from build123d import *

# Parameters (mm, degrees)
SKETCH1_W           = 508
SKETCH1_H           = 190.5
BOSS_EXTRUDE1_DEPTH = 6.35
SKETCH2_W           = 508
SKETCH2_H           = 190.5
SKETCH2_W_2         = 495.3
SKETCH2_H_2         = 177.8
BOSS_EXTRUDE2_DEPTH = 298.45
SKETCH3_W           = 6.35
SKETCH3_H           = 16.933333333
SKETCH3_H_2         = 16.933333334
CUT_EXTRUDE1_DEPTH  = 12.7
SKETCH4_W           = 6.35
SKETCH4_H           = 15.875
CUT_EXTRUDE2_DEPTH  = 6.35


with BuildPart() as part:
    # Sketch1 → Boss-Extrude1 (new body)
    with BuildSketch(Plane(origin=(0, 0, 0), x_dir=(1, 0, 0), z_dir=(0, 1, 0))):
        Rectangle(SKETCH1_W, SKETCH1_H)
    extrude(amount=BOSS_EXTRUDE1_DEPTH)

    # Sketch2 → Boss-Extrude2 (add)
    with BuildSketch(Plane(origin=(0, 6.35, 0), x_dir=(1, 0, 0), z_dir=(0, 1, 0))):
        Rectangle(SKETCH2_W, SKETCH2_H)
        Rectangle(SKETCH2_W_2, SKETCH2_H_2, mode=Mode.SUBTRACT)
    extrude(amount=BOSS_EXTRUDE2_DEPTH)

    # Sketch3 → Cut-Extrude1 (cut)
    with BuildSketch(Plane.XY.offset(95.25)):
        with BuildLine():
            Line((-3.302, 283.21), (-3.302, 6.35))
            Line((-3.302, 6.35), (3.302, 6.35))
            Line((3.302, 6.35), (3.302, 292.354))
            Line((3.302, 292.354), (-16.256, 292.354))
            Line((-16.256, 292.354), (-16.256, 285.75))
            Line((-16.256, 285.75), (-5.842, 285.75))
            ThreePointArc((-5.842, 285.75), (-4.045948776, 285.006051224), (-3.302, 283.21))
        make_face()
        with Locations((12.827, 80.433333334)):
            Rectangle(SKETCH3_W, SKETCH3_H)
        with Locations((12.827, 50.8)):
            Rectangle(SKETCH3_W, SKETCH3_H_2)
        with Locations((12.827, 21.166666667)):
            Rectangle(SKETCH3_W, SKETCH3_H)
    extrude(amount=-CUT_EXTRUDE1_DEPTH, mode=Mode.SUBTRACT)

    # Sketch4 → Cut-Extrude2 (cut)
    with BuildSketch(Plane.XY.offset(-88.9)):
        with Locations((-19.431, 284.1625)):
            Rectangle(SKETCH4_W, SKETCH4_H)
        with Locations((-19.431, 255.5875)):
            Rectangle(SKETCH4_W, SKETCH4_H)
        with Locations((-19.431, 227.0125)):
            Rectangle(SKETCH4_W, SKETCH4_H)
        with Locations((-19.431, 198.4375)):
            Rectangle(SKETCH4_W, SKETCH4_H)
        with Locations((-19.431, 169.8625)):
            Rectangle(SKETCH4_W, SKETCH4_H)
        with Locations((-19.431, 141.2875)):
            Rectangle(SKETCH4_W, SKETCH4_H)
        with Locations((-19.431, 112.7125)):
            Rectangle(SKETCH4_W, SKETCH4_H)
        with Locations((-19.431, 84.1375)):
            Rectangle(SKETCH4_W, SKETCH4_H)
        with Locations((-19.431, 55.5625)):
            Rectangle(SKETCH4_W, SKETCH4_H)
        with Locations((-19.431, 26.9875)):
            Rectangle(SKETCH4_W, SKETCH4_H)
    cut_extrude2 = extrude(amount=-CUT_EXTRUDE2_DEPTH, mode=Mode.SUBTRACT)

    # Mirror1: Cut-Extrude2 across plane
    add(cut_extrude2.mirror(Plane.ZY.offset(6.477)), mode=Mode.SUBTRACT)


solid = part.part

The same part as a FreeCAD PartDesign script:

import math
import FreeCAD as App
import Part
import Sketcher
from FreeCAD import Vector
Q = App.Units.Quantity


def add_polygon(sketch, points):
    """Adds a closed chain of lines whose ends are joined by coincident constraints."""
    first, n = sketch.GeometryCount, len(points)
    for a, b in zip(points, points[1:] + points[:1]):
        sketch.addGeometry(Part.LineSegment(App.Vector(*a, 0), App.Vector(*b, 0)), False)
    for i in range(n):
        sketch.addConstraint(Sketcher.Constraint("Coincident", first + i, 2, first + (i + 1) % n, 1))

doc = App.newDocument("Part")
body = doc.addObject("PartDesign::Body", "Body")

sketch1 = body.newObject("Sketcher::SketchObject", "Sketch")
sketch1.AttachmentSupport = (doc.getObject("XZ_Plane"), [""])
sketch1.MapMode = "FlatFace"
add_polygon(sketch1, [(-254, -95.25), (-254, 95.25), (254, 95.25), (254, -95.25)])
sketch1.addConstraint(Sketcher.Constraint("Vertical", 0))
sketch1.addConstraint(Sketcher.Constraint("Horizontal", 1))
sketch1.addConstraint(Sketcher.Constraint("Vertical", 2))
sketch1.addConstraint(Sketcher.Constraint("Horizontal", 3))
sketch1.addConstraint(Sketcher.Constraint("Symmetric", 0, 2, 2, 2, -1, 1))
sketch1.addConstraint(Sketcher.Constraint("DistanceX", 1, 1, 1, 2, Q("20 in")))
sketch1.addConstraint(Sketcher.Constraint("DistanceY", 0, 1, 0, 2, Q("7.5 in")))
pad1 = body.newObject("PartDesign::Pad", "Pad")
pad1.Profile = sketch1
pad1.Length = Q("0.25 in")
pad1.Reversed = True

sketch2 = body.newObject("Sketcher::SketchObject", "Sketch001")
sketch2.AttachmentSupport = (doc.getObject("XZ_Plane"), [""])
sketch2.MapMode = "FlatFace"
sketch2.AttachmentOffset = App.Placement(Vector(0, 0, -0.25 * 25.4), App.Rotation())
add_polygon(sketch2, [(-254, -95.25), (-254, 95.25), (254, 95.25), (254, -95.25)])
add_polygon(sketch2, [(247.65, 88.9), (-247.65, 88.9), (-247.65, -88.9), (247.65, -88.9)])
sketch2.addConstraint(Sketcher.Constraint("Vertical", 0))
sketch2.addConstraint(Sketcher.Constraint("Horizontal", 1))
sketch2.addConstraint(Sketcher.Constraint("Vertical", 2))
sketch2.addConstraint(Sketcher.Constraint("Horizontal", 3))
sketch2.addConstraint(Sketcher.Constraint("Horizontal", 4))
sketch2.addConstraint(Sketcher.Constraint("Vertical", 5))
sketch2.addConstraint(Sketcher.Constraint("Horizontal", 6))
sketch2.addConstraint(Sketcher.Constraint("Vertical", 7))
sketch2.addConstraint(Sketcher.Constraint("Symmetric", 0, 2, 2, 2, -1, 1))
sketch2.addConstraint(Sketcher.Constraint("Symmetric", 4, 2, 6, 2, -1, 1))
sketch2.addConstraint(Sketcher.Constraint("DistanceX", 1, 1, 1, 2, Q("20 in")))
sketch2.addConstraint(Sketcher.Constraint("DistanceY", 5, 2, 5, 1, Q("7 in")))
sketch2.addConstraint(Sketcher.Constraint("DistanceX", 4, 2, 4, 1, Q("19.5 in")))
sketch2.addConstraint(Sketcher.Constraint("DistanceY", 0, 1, 0, 2, Q("7.5 in")))
pad2 = body.newObject("PartDesign::Pad", "Pad001")
pad2.Profile = sketch2
pad2.Length = Q("11.75 in")
pad2.Reversed = True

sketch3 = body.newObject("Sketcher::SketchObject", "Sketch002")
sketch3.AttachmentSupport = (doc.getObject("XY_Plane"), [""])
sketch3.MapMode = "FlatFace"
sketch3.AttachmentOffset = App.Placement(Vector(0, 0, 3.75 * 25.4), App.Rotation())
sketch3.addGeometry(Part.LineSegment(Vector(-3.302, 283.21, 0), Vector(-3.302, 6.35, 0)), False)
sketch3.addGeometry(Part.LineSegment(Vector(-3.302, 6.35, 0), Vector(3.302, 6.35, 0)), False)
sketch3.addGeometry(Part.LineSegment(Vector(3.302, 6.35, 0), Vector(3.302, 292.354, 0)), False)
sketch3.addGeometry(Part.LineSegment(Vector(3.302, 292.354, 0), Vector(-16.256, 292.354, 0)), False)
sketch3.addGeometry(Part.LineSegment(Vector(-16.256, 292.354, 0), Vector(-16.256, 285.75, 0)), False)
sketch3.addGeometry(Part.LineSegment(Vector(-16.256, 285.75, 0), Vector(-5.842, 285.75, 0)), False)
sketch3.addGeometry(Part.ArcOfCircle(Part.Circle(Vector(-5.842, 283.21, 0), Vector(0, 0, 1), 2.54), math.radians(0), math.radians(90)), False)
add_polygon(sketch3, [(9.652, 88.9), (9.652, 71.966667), (16.002, 71.966667), (16.002, 88.9)])
add_polygon(sketch3, [(9.652, 59.266667), (9.652, 42.333333), (16.002, 42.333333), (16.002, 59.266667)])
add_polygon(sketch3, [(9.652, 29.633333), (9.652, 12.7), (16.002, 12.7), (16.002, 29.633333)])
sketch3.addConstraint(Sketcher.Constraint("Coincident", 0, 2, 1, 1))
sketch3.addConstraint(Sketcher.Constraint("Coincident", 1, 2, 2, 1))
sketch3.addConstraint(Sketcher.Constraint("Coincident", 2, 2, 3, 1))
sketch3.addConstraint(Sketcher.Constraint("Coincident", 3, 2, 4, 1))
sketch3.addConstraint(Sketcher.Constraint("Coincident", 4, 2, 5, 1))
sketch3.addConstraint(Sketcher.Constraint("Tangent", 5, 2, 6, 2))
sketch3.addConstraint(Sketcher.Constraint("Tangent", 6, 1, 0, 1))
sketch3.addConstraint(Sketcher.Constraint("Vertical", 0))
sketch3.addConstraint(Sketcher.Constraint("Horizontal", 1))
sketch3.addConstraint(Sketcher.Constraint("Vertical", 2))
sketch3.addConstraint(Sketcher.Constraint("Horizontal", 3))
sketch3.addConstraint(Sketcher.Constraint("Vertical", 4))
sketch3.addConstraint(Sketcher.Constraint("Horizontal", 5))
sketch3.addConstraint(Sketcher.Constraint("Vertical", 7))
sketch3.addConstraint(Sketcher.Constraint("Horizontal", 8))
sketch3.addConstraint(Sketcher.Constraint("Vertical", 9))
sketch3.addConstraint(Sketcher.Constraint("Horizontal", 10))
sketch3.addConstraint(Sketcher.Constraint("Vertical", 11))
sketch3.addConstraint(Sketcher.Constraint("Horizontal", 12))
sketch3.addConstraint(Sketcher.Constraint("Vertical", 13))
sketch3.addConstraint(Sketcher.Constraint("Horizontal", 14))
sketch3.addConstraint(Sketcher.Constraint("Vertical", 15))
sketch3.addConstraint(Sketcher.Constraint("Horizontal", 16))
sketch3.addConstraint(Sketcher.Constraint("Vertical", 17))
sketch3.addConstraint(Sketcher.Constraint("Horizontal", 18))
sketch3.addConstraint(Sketcher.Constraint("Vertical", 10, 2, 11, 2))
sketch3.addConstraint(Sketcher.Constraint("Vertical", 9, 2, 12, 2))
sketch3.addConstraint(Sketcher.Constraint("Vertical", 14, 2, 15, 2))
sketch3.addConstraint(Sketcher.Constraint("Vertical", 13, 2, 16, 2))
sketch3.addConstraint(Sketcher.Constraint("Equal", 1, 4))
sketch3.addConstraint(Sketcher.Constraint("Equal", 9, 11))
sketch3.addConstraint(Sketcher.Constraint("Equal", 13, 15))
sketch3.addConstraint(Sketcher.Constraint("Radius", 6, Q("0.1 in")))
sketch3.addConstraint(Sketcher.Constraint("DistanceY", 0, 2, 0, 1, Q("10.9 in")))
sketch3.addConstraint(Sketcher.Constraint("DistanceX", 1, 1, 1, 2, Q("0.26 in")))
sketch3.addConstraint(Sketcher.Constraint("DistanceX", 3, 2, 3, 1, Q("0.77 in")))
sketch3.addConstraint(Sketcher.Constraint("DistanceX", 8, 1, 8, 2, Q("0.25 in")))
sketch3.addConstraint(Sketcher.Constraint("DistanceY", -1, 1, 9, 2, Q("3.5 in")))
sketch3.addConstraint(Sketcher.Constraint("DistanceY", -1, 1, 15, 2, Q("0.5 in")))
sketch3.addConstraint(Sketcher.Constraint("DistanceX", 1, 2, 8, 2, Q("0.5 in")))
sketch3.addConstraint(Sketcher.Constraint("DistanceY", 13, 2, 8, 2, Q("0.5 in")))
sketch3.addConstraint(Sketcher.Constraint("DistanceY", 17, 2, 12, 2, Q("0.5 in")))
sketch3.addConstraint(Sketcher.Constraint("DistanceX", 6, 3, -1, 1, Q("0.23 in")))
sketch3.addConstraint(Sketcher.Constraint("DistanceY", -1, 1, 6, 3, Q("11.15 in")))
pocket1 = body.newObject("PartDesign::Pocket", "Pocket")
pocket1.Profile = sketch3
pocket1.Length = Q("0.5 in")

sketch4 = body.newObject("Sketcher::SketchObject", "Sketch003")
sketch4.AttachmentSupport = (doc.getObject("XY_Plane"), [""])
sketch4.MapMode = "FlatFace"
sketch4.AttachmentOffset = App.Placement(Vector(0, 0, -3.5 * 25.4), App.Rotation())
add_polygon(sketch4, [(-22.606, 292.1), (-22.606, 276.225), (-16.256, 276.225), (-16.256, 292.1)])
add_polygon(sketch4, [(-22.606, 263.525), (-22.606, 247.65), (-16.256, 247.65), (-16.256, 263.525)])
add_polygon(sketch4, [(-22.606, 234.95), (-22.606, 219.075), (-16.256, 219.075), (-16.256, 234.95)])
add_polygon(sketch4, [(-22.606, 206.375), (-22.606, 190.5), (-16.256, 190.5), (-16.256, 206.375)])
add_polygon(sketch4, [(-22.606, 177.8), (-22.606, 161.925), (-16.256, 161.925), (-16.256, 177.8)])
add_polygon(sketch4, [(-22.606, 149.225), (-22.606, 133.35), (-16.256, 133.35), (-16.256, 149.225)])
add_polygon(sketch4, [(-22.606, 120.65), (-22.606, 104.775), (-16.256, 104.775), (-16.256, 120.65)])
add_polygon(sketch4, [(-22.606, 92.075), (-22.606, 76.2), (-16.256, 76.2), (-16.256, 92.075)])
add_polygon(sketch4, [(-22.606, 63.5), (-22.606, 47.625), (-16.256, 47.625), (-16.256, 63.5)])
add_polygon(sketch4, [(-22.606, 34.925), (-22.606, 19.05), (-16.256, 19.05), (-16.256, 34.925)])
sketch4.addConstraint(Sketcher.Constraint("Vertical", 0))
sketch4.addConstraint(Sketcher.Constraint("Horizontal", 1))
sketch4.addConstraint(Sketcher.Constraint("Vertical", 2))
sketch4.addConstraint(Sketcher.Constraint("Horizontal", 3))
sketch4.addConstraint(Sketcher.Constraint("Vertical", 4))
sketch4.addConstraint(Sketcher.Constraint("Horizontal", 5))
sketch4.addConstraint(Sketcher.Constraint("Vertical", 6))
sketch4.addConstraint(Sketcher.Constraint("Horizontal", 7))
sketch4.addConstraint(Sketcher.Constraint("Vertical", 8))
sketch4.addConstraint(Sketcher.Constraint("Horizontal", 9))
sketch4.addConstraint(Sketcher.Constraint("Vertical", 10))
sketch4.addConstraint(Sketcher.Constraint("Horizontal", 11))
sketch4.addConstraint(Sketcher.Constraint("Vertical", 12))
sketch4.addConstraint(Sketcher.Constraint("Horizontal", 13))
sketch4.addConstraint(Sketcher.Constraint("Vertical", 14))
sketch4.addConstraint(Sketcher.Constraint("Horizontal", 15))
sketch4.addConstraint(Sketcher.Constraint("Vertical", 16))
sketch4.addConstraint(Sketcher.Constraint("Horizontal", 17))
sketch4.addConstraint(Sketcher.Constraint("Vertical", 18))
sketch4.addConstraint(Sketcher.Constraint("Horizontal", 19))
sketch4.addConstraint(Sketcher.Constraint("Vertical", 20))
sketch4.addConstraint(Sketcher.Constraint("Horizontal", 21))
sketch4.addConstraint(Sketcher.Constraint("Vertical", 22))
sketch4.addConstraint(Sketcher.Constraint("Horizontal", 23))
sketch4.addConstraint(Sketcher.Constraint("Vertical", 24))
sketch4.addConstraint(Sketcher.Constraint("Horizontal", 25))
sketch4.addConstraint(Sketcher.Constraint("Vertical", 26))
sketch4.addConstraint(Sketcher.Constraint("Horizontal", 27))
sketch4.addConstraint(Sketcher.Constraint("Vertical", 28))
sketch4.addConstraint(Sketcher.Constraint("Horizontal", 29))
sketch4.addConstraint(Sketcher.Constraint("Vertical", 30))
sketch4.addConstraint(Sketcher.Constraint("Horizontal", 31))
sketch4.addConstraint(Sketcher.Constraint("Vertical", 32))
sketch4.addConstraint(Sketcher.Constraint("Horizontal", 33))
sketch4.addConstraint(Sketcher.Constraint("Vertical", 34))
sketch4.addConstraint(Sketcher.Constraint("Horizontal", 35))
sketch4.addConstraint(Sketcher.Constraint("Vertical", 36))
sketch4.addConstraint(Sketcher.Constraint("Horizontal", 37))
sketch4.addConstraint(Sketcher.Constraint("Vertical", 38))
sketch4.addConstraint(Sketcher.Constraint("Horizontal", 39))
sketch4.addConstraint(Sketcher.Constraint("Vertical", 3, 2, 4, 2))
sketch4.addConstraint(Sketcher.Constraint("Vertical", 2, 2, 5, 2))
sketch4.addConstraint(Sketcher.Constraint("Vertical", 7, 2, 8, 2))
sketch4.addConstraint(Sketcher.Constraint("Vertical", 6, 2, 9, 2))
sketch4.addConstraint(Sketcher.Constraint("Vertical", 11, 2, 12, 2))
sketch4.addConstraint(Sketcher.Constraint("Vertical", 10, 2, 13, 2))
sketch4.addConstraint(Sketcher.Constraint("Vertical", 15, 2, 16, 2))
sketch4.addConstraint(Sketcher.Constraint("Vertical", 14, 2, 17, 2))
sketch4.addConstraint(Sketcher.Constraint("Vertical", 19, 2, 20, 2))
sketch4.addConstraint(Sketcher.Constraint("Vertical", 18, 2, 21, 2))
sketch4.addConstraint(Sketcher.Constraint("Vertical", 23, 2, 24, 2))
sketch4.addConstraint(Sketcher.Constraint("Vertical", 22, 2, 25, 2))
sketch4.addConstraint(Sketcher.Constraint("Vertical", 27, 2, 28, 2))
sketch4.addConstraint(Sketcher.Constraint("Vertical", 26, 2, 29, 2))
sketch4.addConstraint(Sketcher.Constraint("Vertical", 31, 2, 32, 2))
sketch4.addConstraint(Sketcher.Constraint("Vertical", 30, 2, 33, 2))
sketch4.addConstraint(Sketcher.Constraint("Vertical", 35, 2, 36, 2))
sketch4.addConstraint(Sketcher.Constraint("Vertical", 34, 2, 37, 2))
sketch4.addConstraint(Sketcher.Constraint("Equal", 2, 4))
sketch4.addConstraint(Sketcher.Constraint("Equal", 6, 8))
sketch4.addConstraint(Sketcher.Constraint("Equal", 10, 12))
sketch4.addConstraint(Sketcher.Constraint("Equal", 14, 16))
sketch4.addConstraint(Sketcher.Constraint("Equal", 18, 20))
sketch4.addConstraint(Sketcher.Constraint("Equal", 22, 24))
sketch4.addConstraint(Sketcher.Constraint("Equal", 26, 28))
sketch4.addConstraint(Sketcher.Constraint("Equal", 30, 32))
sketch4.addConstraint(Sketcher.Constraint("Equal", 34, 36))
sketch4.addConstraint(Sketcher.Constraint("DistanceY", -1, 1, 18, 2, Q("7 in")))
sketch4.addConstraint(Sketcher.Constraint("DistanceY", -1, 1, 28, 2, Q("3 in")))
sketch4.addConstraint(Sketcher.Constraint("DistanceX", 1, 1, 1, 2, Q("0.25 in")))
sketch4.addConstraint(Sketcher.Constraint("DistanceY", -1, 1, 2, 2, Q("11.5 in")))
sketch4.addConstraint(Sketcher.Constraint("DistanceY", -1, 1, 12, 2, Q("7.5 in")))
sketch4.addConstraint(Sketcher.Constraint("DistanceY", -1, 1, 34, 2, Q("2.5 in")))
sketch4.addConstraint(Sketcher.Constraint("DistanceY", 6, 2, 1, 2, Q("0.5 in")))
sketch4.addConstraint(Sketcher.Constraint("DistanceY", 10, 2, 5, 2, Q("0.5 in")))
sketch4.addConstraint(Sketcher.Constraint("DistanceY", 14, 2, 9, 2, Q("0.5 in")))
sketch4.addConstraint(Sketcher.Constraint("DistanceY", 22, 2, 17, 2, Q("0.5 in")))
sketch4.addConstraint(Sketcher.Constraint("DistanceY", 26, 2, 21, 2, Q("0.5 in")))
sketch4.addConstraint(Sketcher.Constraint("DistanceY", 38, 2, 33, 2, Q("0.5 in")))
sketch4.addConstraint(Sketcher.Constraint("DistanceX", 0, 2, -1, 1, Q("0.89 in")))
pocket2 = body.newObject("PartDesign::Pocket", "Pocket001")
pocket2.Profile = sketch4
pocket2.Length = Q("0.25 in")
doc.recompute()

datumplane = body.newObject("PartDesign::Plane", "DatumPlane")
datumplane.AttachmentSupport = (doc.getObject("YZ_Plane"), [""])
datumplane.MapMode = "FlatFace"
datumplane.AttachmentOffset = App.Placement(Vector(0, 0, -0.255 * 25.4), App.Rotation())
mirrored = body.newObject("PartDesign::Mirrored", "Mirrored")
mirrored.Originals = [pocket2]
mirrored.MirrorPlane = (datumplane, [""])
body.Tip = mirrored

doc.recompute()
